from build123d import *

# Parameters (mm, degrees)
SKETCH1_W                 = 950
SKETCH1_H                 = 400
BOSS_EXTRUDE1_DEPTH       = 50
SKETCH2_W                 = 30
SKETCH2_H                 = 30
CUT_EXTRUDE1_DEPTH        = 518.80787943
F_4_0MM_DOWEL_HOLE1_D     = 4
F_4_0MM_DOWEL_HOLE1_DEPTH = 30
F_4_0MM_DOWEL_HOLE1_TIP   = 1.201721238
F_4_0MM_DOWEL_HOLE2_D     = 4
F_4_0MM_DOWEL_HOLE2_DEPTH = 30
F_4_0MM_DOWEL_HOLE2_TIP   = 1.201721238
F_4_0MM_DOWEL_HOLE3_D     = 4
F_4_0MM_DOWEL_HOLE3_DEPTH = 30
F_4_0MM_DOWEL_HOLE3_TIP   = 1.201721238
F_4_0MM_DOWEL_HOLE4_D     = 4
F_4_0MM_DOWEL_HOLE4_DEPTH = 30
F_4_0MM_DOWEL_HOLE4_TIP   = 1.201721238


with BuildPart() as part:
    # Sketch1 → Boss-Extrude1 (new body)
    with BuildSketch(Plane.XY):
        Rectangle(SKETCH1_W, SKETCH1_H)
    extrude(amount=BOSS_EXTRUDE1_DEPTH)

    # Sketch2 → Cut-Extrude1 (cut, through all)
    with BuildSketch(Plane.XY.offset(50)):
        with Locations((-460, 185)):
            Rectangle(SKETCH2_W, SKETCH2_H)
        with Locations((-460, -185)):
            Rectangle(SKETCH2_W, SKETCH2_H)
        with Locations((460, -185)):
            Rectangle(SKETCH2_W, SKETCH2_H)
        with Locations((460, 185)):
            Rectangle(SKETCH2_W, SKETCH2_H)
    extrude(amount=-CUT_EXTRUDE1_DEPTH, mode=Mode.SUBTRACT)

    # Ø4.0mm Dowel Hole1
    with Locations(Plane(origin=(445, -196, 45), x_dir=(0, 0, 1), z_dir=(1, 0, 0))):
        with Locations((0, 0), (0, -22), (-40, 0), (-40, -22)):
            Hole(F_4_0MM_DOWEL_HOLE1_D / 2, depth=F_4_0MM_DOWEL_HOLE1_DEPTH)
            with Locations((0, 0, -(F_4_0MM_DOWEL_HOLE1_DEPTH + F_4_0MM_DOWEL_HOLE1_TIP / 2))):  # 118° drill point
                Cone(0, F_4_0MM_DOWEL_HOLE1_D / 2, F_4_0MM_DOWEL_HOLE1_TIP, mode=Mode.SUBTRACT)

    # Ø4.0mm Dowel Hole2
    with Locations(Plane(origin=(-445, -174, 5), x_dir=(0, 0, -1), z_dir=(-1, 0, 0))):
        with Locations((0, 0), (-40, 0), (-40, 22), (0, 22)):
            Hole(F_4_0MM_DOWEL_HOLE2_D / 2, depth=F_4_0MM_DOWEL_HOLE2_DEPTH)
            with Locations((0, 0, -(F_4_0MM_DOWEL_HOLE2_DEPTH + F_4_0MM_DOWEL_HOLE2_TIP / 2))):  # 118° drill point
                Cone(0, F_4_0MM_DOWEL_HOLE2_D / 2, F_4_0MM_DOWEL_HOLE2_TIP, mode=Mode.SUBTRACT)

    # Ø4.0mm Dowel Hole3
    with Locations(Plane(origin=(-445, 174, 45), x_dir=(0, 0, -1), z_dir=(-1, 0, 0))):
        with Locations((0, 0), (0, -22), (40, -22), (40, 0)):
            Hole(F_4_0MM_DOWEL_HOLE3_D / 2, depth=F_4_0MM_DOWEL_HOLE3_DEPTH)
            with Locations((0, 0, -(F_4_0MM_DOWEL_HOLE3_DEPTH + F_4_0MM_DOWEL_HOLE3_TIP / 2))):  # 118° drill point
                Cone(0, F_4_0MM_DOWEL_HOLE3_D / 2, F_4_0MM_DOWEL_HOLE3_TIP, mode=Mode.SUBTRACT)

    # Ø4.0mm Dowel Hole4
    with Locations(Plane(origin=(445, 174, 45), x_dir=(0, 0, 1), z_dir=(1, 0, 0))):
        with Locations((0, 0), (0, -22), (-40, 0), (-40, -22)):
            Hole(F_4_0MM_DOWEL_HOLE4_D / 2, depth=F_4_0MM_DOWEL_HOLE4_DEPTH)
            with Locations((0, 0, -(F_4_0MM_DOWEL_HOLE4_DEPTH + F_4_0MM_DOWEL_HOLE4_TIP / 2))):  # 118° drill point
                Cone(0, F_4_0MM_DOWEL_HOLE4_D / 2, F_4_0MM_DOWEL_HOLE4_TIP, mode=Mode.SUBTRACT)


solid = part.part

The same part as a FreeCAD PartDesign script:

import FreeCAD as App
import Part
import Sketcher
from FreeCAD import Vector
Q = App.Units.Quantity

doc = App.newDocument("Part")
body = doc.addObject("PartDesign::Body", "Body")

# Sketch on XY plane
sketch1 = body.newObject("Sketcher::SketchObject", "Sketch")
sketch1.AttachmentSupport = (doc.getObject("XY_Plane"), [""])
sketch1.MapMode = "FlatFace"
sketch1.addGeometry(Part.LineSegment(Vector(-475, 200, 0), Vector(-475, -200, 0)), False)
sketch1.addGeometry(Part.LineSegment(Vector(-475, -200, 0), Vector(475, -200, 0)), False)
sketch1.addGeometry(Part.LineSegment(Vector(475, -200, 0), Vector(475, 200, 0)), False)
sketch1.addGeometry(Part.LineSegment(Vector(475, 200, 0), Vector(-475, 200, 0)), False)
sketch1.addConstraint(Sketcher.Constraint("Coincident", 0, 2, 1, 1))
sketch1.addConstraint(Sketcher.Constraint("Coincident", 1, 2, 2, 1))
sketch1.addConstraint(Sketcher.Constraint("Coincident", 2, 2, 3, 1))
sketch1.addConstraint(Sketcher.Constraint("Coincident", 3, 2, 0, 1))
sketch1.addConstraint(Sketcher.Constraint("Vertical", 0))
sketch1.addConstraint(Sketcher.Constraint("Horizontal", 1))
sketch1.addConstraint(Sketcher.Constraint("Vertical", 2))
sketch1.addConstraint(Sketcher.Constraint("Horizontal", 3))
sketch1.addConstraint(Sketcher.Constraint("Symmetric", 0, 2, 2, 2, -1, 1))
sketch1.addConstraint(Sketcher.Constraint("DistanceX", 1, 1, 1, 2, Q("950 mm")))
sketch1.addConstraint(Sketcher.Constraint("DistanceY", 0, 2, 0, 1, Q("400 mm")))
pad1 = body.newObject("PartDesign::Pad", "Pad")
pad1.Profile = sketch1
pad1.Length = 50

# Sketch on XY plane
sketch2 = body.newObject("Sketcher::SketchObject", "Sketch001")
sketch2.AttachmentSupport = (doc.getObject("XY_Plane"), [""])
sketch2.MapMode = "FlatFace"
sketch2.AttachmentOffset = App.Placement(Vector(0, 0, 50), App.Rotation())
sketch2.addGeometry(Part.LineSegment(Vector(-475, 200, 0), Vector(-475, 170, 0)), False)
sketch2.addGeometry(Part.LineSegment(Vector(-475, 170, 0), Vector(-445, 170, 0)), False)
sketch2.addGeometry(Part.LineSegment(Vector(-445, 170, 0), Vector(-445, 200, 0)), False)
sketch2.addGeometry(Part.LineSegment(Vector(-445, 200, 0), Vector(-475, 200, 0)), False)
sketch2.addGeometry(Part.LineSegment(Vector(-475, -170, 0), Vector(-475, -200, 0)), False)
sketch2.addGeometry(Part.LineSegment(Vector(-475, -200, 0), Vector(-445, -200, 0)), False)
sketch2.addGeometry(Part.LineSegment(Vector(-445, -200, 0), Vector(-445, -170, 0)), False)
sketch2.addGeometry(Part.LineSegment(Vector(-445, -170, 0), Vector(-475, -170, 0)), False)
sketch2.addGeometry(Part.LineSegment(Vector(445, -170, 0), Vector(445, -200, 0)), False)
sketch2.addGeometry(Part.LineSegment(Vector(445, -200, 0), Vector(475, -200, 0)), False)
sketch2.addGeometry(Part.LineSegment(Vector(475, -200, 0), Vector(475, -170, 0)), False)
sketch2.addGeometry(Part.LineSegment(Vector(475, -170, 0), Vector(445, -170, 0)), False)
sketch2.addGeometry(Part.LineSegment(Vector(445, 200, 0), Vector(445, 170, 0)), False)
sketch2.addGeometry(Part.LineSegment(Vector(445, 170, 0), Vector(475, 170, 0)), False)
sketch2.addGeometry(Part.LineSegment(Vector(475, 170, 0), Vector(475, 200, 0)), False)
sketch2.addGeometry(Part.LineSegment(Vector(475, 200, 0), Vector(445, 200, 0)), False)
sketch2.addConstraint(Sketcher.Constraint("Coincident", 0, 2, 1, 1))
sketch2.addConstraint(Sketcher.Constraint("Coincident", 1, 2, 2, 1))
sketch2.addConstraint(Sketcher.Constraint("Coincident", 2, 2, 3, 1))
sketch2.addConstraint(Sketcher.Constraint("Coincident", 3, 2, 0, 1))
sketch2.addConstraint(Sketcher.Constraint("Coincident", 4, 2, 5, 1))
sketch2.addConstraint(Sketcher.Constraint("Coincident", 5, 2, 6, 1))
sketch2.addConstraint(Sketcher.Constraint("Coincident", 6, 2, 7, 1))
sketch2.addConstraint(Sketcher.Constraint("Coincident", 7, 2, 4, 1))
sketch2.addConstraint(Sketcher.Constraint("Coincident", 8, 2, 9, 1))
sketch2.addConstraint(Sketcher.Constraint("Coincident", 9, 2, 10, 1))
sketch2.addConstraint(Sketcher.Constraint("Coincident", 10, 2, 11, 1))
sketch2.addConstraint(Sketcher.Constraint("Coincident", 11, 2, 8, 1))
sketch2.addConstraint(Sketcher.Constraint("Coincident", 12, 2, 13, 1))
sketch2.addConstraint(Sketcher.Constraint("Coincident", 13, 2, 14, 1))
sketch2.addConstraint(Sketcher.Constraint("Coincident", 14, 2, 15, 1))
sketch2.addConstraint(Sketcher.Constraint("Coincident", 15, 2, 12, 1))
sketch2.addConstraint(Sketcher.Constraint("Vertical", 0))
sketch2.addConstraint(Sketcher.Constraint("Horizontal", 1))
sketch2.addConstraint(Sketcher.Constraint("Vertical", 2))
sketch2.addConstraint(Sketcher.Constraint("Horizontal", 3))
sketch2.addConstraint(Sketcher.Constraint("Vertical", 4))
sketch2.addConstraint(Sketcher.Constraint("Horizontal", 5))
sketch2.addConstraint(Sketcher.Constraint("Vertical", 6))
sketch2.addConstraint(Sketcher.Constraint("Horizontal", 7))
sketch2.addConstraint(Sketcher.Constraint("Vertical", 8))
sketch2.addConstraint(Sketcher.Constraint("Horizontal", 9))
sketch2.addConstraint(Sketcher.Constraint("Vertical", 10))
sketch2.addConstraint(Sketcher.Constraint("Horizontal", 11))
sketch2.addConstraint(Sketcher.Constraint("Vertical", 12))
sketch2.addConstraint(Sketcher.Constraint("Horizontal", 13))
sketch2.addConstraint(Sketcher.Constraint("Vertical", 14))
sketch2.addConstraint(Sketcher.Constraint("Horizontal", 15))
sketch2.addConstraint(Sketcher.Constraint("Symmetric", 2, 2, 8, 2, -1, 1))
sketch2.addConstraint(Sketcher.Constraint("Symmetric", 0, 2, 10, 2, -1, 1))
sketch2.addConstraint(Sketcher.Constraint("Symmetric", 6, 2, 12, 2, -1, 1))
sketch2.addConstraint(Sketcher.Constraint("Symmetric", 4, 2, 14, 2, -1, 1))
sketch2.addConstraint(Sketcher.Constraint("Symmetric", 5, 2, 8, 2, -2))
sketch2.addConstraint(Sketcher.Constraint("Symmetric", 7, 2, 10, 2, -2))
sketch2.addConstraint(Sketcher.Constraint("Equal", 15, 0))
sketch2.addConstraint(Sketcher.Constraint("DistanceX", 1, 1, 1, 2, Q("30 mm")))
sketch2.addConstraint(Sketcher.Constraint("DistanceX", 0, 2, -1, 1, Q("475 mm")))
sketch2.addConstraint(Sketcher.Constraint("DistanceY", -1, 1, 0, 2, Q("170 mm")))
pocket1 = body.newObject("PartDesign::Pocket", "Pocket")
pocket1.Profile = sketch2
pocket1.Type = "ThroughAll"

# Sketch on YZ plane
sketch3 = body.newObject("Sketcher::SketchObject", "Sketch002")
sketch3.AttachmentSupport = (doc.getObject("YZ_Plane"), [""])
sketch3.MapMode = "FlatFace"
sketch3.AttachmentOffset = App.Placement(Vector(0, 0, 445), App.Rotation())
sketch3.addGeometry(Part.Circle(Vector(-196, 45, 0), Vector(0, 0, 1), 2), False)
sketch3.addGeometry(Part.Circle(Vector(-174, 45, 0), Vector(0, 0, 1), 2), False)
sketch3.addGeometry(Part.Circle(Vector(-196, 5, 0), Vector(0, 0, 1), 2), False)
sketch3.addGeometry(Part.Circle(Vector(-174, 5, 0), Vector(0, 0, 1), 2), False)
sketch3.addConstraint(Sketcher.Constraint("Equal", 0, 1))
sketch3.addConstraint(Sketcher.Constraint("Equal", 1, 2))
sketch3.addConstraint(Sketcher.Constraint("Equal", 2, 3))
sketch3.addConstraint(Sketcher.Constraint("Horizontal", 0, 3, 1, 3))
sketch3.addConstraint(Sketcher.Constraint("Horizontal", 2, 3, 3, 3))
sketch3.addConstraint(Sketcher.Constraint("Vertical", 0, 3, 2, 3))
sketch3.addConstraint(Sketcher.Constraint("Vertical", 1, 3, 3, 3))
sketch3.addConstraint(Sketcher.Constraint("Diameter", 0, Q("4 mm")))
sketch3.addConstraint(Sketcher.Constraint("DistanceX", 0, 3, -1, 1, Q("196 mm")))
sketch3.addConstraint(Sketcher.Constraint("DistanceY", -1, 1, 0, 3, Q("45 mm")))
sketch3.addConstraint(Sketcher.Constraint("DistanceX", 1, 3, -1, 1, Q("174 mm")))
sketch3.addConstraint(Sketcher.Constraint("DistanceY", -1, 1, 2, 3, Q("5 mm")))
doc.recompute()
hole = body.newObject("PartDesign::Hole", "Hole")
hole.Profile = sketch3
hole.ThreadType = "None"
hole.Diameter = 4
hole.DepthType = "Dimension"
hole.Depth = 30
hole.DrillPoint = "Angled"
hole.DrillPointAngle = 118

# Sketch on YZ plane
sketch4 = body.newObject("Sketcher::SketchObject", "Sketch003")
sketch4.AttachmentSupport = (doc.getObject("YZ_Plane"), [""])
sketch4.MapMode = "FlatFace"
sketch4.AttachmentOffset = App.Placement(Vector(0, 0, -445), App.Rotation())
sketch4.addGeometry(Part.Circle(Vector(-174, 5, 0), Vector(0, 0, 1), 2), False)
sketch4.addGeometry(Part.Circle(Vector(-174, 45, 0), Vector(0, 0, 1), 2), False)
sketch4.addGeometry(Part.Circle(Vector(-196, 45, 0), Vector(0, 0, 1), 2), False)
sketch4.addGeometry(Part.Circle(Vector(-196, 5, 0), Vector(0, 0, 1), 2), False)
sketch4.addConstraint(Sketcher.Constraint("Equal", 0, 1))
sketch4.addConstraint(Sketcher.Constraint("Equal", 1, 2))
sketch4.addConstraint(Sketcher.Constraint("Equal", 2, 3))
sketch4.addConstraint(Sketcher.Constraint("Horizontal", 1, 3, 2, 3))
sketch4.addConstraint(Sketcher.Constraint("Horizontal", 0, 3, 3, 3))
sketch4.addConstraint(Sketcher.Constraint("Vertical", 0, 3, 1, 3))
sketch4.addConstraint(Sketcher.Constraint("Vertical", 2, 3, 3, 3))
sketch4.addConstraint(Sketcher.Constraint("Diameter", 0, Q("4 mm")))
sketch4.addConstraint(Sketcher.Constraint("DistanceX", 0, 3, -1, 1, Q("174 mm")))
sketch4.addConstraint(Sketcher.Constraint("DistanceY", -1, 1, 0, 3, Q("5 mm")))
sketch4.addConstraint(Sketcher.Constraint("DistanceY", -1, 1, 1, 3, Q("45 mm")))
sketch4.addConstraint(Sketcher.Constraint("DistanceX", 2, 3, -1, 1, Q("196 mm")))
doc.recompute()
hole2 = body.newObject("PartDesign::Hole", "Hole001")
hole2.Profile = sketch4
hole2.ThreadType = "None"
hole2.Diameter = 4
hole2.DepthType = "Dimension"
hole2.Depth = 30
hole2.DrillPoint = "Angled"
hole2.DrillPointAngle = 118
hole2.Reversed = True

# Sketch on YZ plane
sketch5 = body.newObject("Sketcher::SketchObject", "Sketch004")
sketch5.AttachmentSupport = (doc.getObject("YZ_Plane"), [""])
sketch5.MapMode = "FlatFace"
sketch5.AttachmentOffset = App.Placement(Vector(0, 0, -445), App.Rotation())
sketch5.addGeometry(Part.Circle(Vector(174, 45, 0), Vector(0, 0, 1), 2), False)
sketch5.addGeometry(Part.Circle(Vector(196, 45, 0), Vector(0, 0, 1), 2), False)
sketch5.addGeometry(Part.Circle(Vector(196, 5, 0), Vector(0, 0, 1), 2), False)
sketch5.addGeometry(Part.Circle(Vector(174, 5, 0), Vector(0, 0, 1), 2), False)
sketch5.addConstraint(Sketcher.Constraint("Equal", 0, 1))
sketch5.addConstraint(Sketcher.Constraint("Equal", 1, 2))
sketch5.addConstraint(Sketcher.Constraint("Equal", 2, 3))
sketch5.addConstraint(Sketcher.Constraint("Horizontal", 0, 3, 1, 3))
sketch5.addConstraint(Sketcher.Constraint("Horizontal", 2, 3, 3, 3))
sketch5.addConstraint(Sketcher.Constraint("Vertical", 1, 3, 2, 3))
sketch5.addConstraint(Sketcher.Constraint("Vertical", 0, 3, 3, 3))
sketch5.addConstraint(Sketcher.Constraint("Diameter", 0, Q("4 mm")))
sketch5.addConstraint(Sketcher.Constraint("DistanceX", -1, 1, 0, 3, Q("174 mm")))
sketch5.addConstraint(Sketcher.Constraint("DistanceY", -1, 1, 0, 3, Q("45 mm")))
sketch5.addConstraint(Sketcher.Constraint("DistanceX", -1, 1, 1, 3, Q("196 mm")))
sketch5.addConstraint(Sketcher.Constraint("DistanceY", -1, 1, 2, 3, Q("5 mm")))
doc.recompute()
hole3 = body.newObject("PartDesign::Hole", "Hole002")
hole3.Profile = sketch5
hole3.ThreadType = "None"
hole3.Diameter = 4
hole3.DepthType = "Dimension"
hole3.Depth = 30
hole3.DrillPoint = "Angled"
hole3.DrillPointAngle = 118
hole3.Reversed = True

# Sketch on YZ plane
sketch6 = body.newObject("Sketcher::SketchObject", "Sketch005")
sketch6.AttachmentSupport = (doc.getObject("YZ_Plane"), [""])
sketch6.MapMode = "FlatFace"
sketch6.AttachmentOffset = App.Placement(Vector(0, 0, 445), App.Rotation())
sketch6.addGeometry(Part.Circle(Vector(174, 45, 0), Vector(0, 0, 1), 2), False)
sketch6.addGeometry(Part.Circle(Vector(196, 45, 0), Vector(0, 0, 1), 2), False)
sketch6.addGeometry(Part.Circle(Vector(174, 5, 0), Vector(0, 0, 1), 2), False)
sketch6.addGeometry(Part.Circle(Vector(196, 5, 0), Vector(0, 0, 1), 2), False)
sketch6.addConstraint(Sketcher.Constraint("Equal", 0, 1))
sketch6.addConstraint(Sketcher.Constraint("Equal", 1, 2))
sketch6.addConstraint(Sketcher.Constraint("Equal", 2, 3))
sketch6.addConstraint(Sketcher.Constraint("Horizontal", 0, 3, 1, 3))
sketch6.addConstraint(Sketcher.Constraint("Horizontal", 2, 3, 3, 3))
sketch6.addConstraint(Sketcher.Constraint("Vertical", 0, 3, 2, 3))
sketch6.addConstraint(Sketcher.Constraint("Vertical", 1, 3, 3, 3))
sketch6.addConstraint(Sketcher.Constraint("Diameter", 0, Q("4 mm")))
sketch6.addConstraint(Sketcher.Constraint("DistanceX", -1, 1, 0, 3, Q("174 mm")))
sketch6.addConstraint(Sketcher.Constraint("DistanceY", -1, 1, 0, 3, Q("45 mm")))
sketch6.addConstraint(Sketcher.Constraint("DistanceX", -1, 1, 1, 3, Q("196 mm")))
sketch6.addConstraint(Sketcher.Constraint("DistanceY", -1, 1, 2, 3, Q("5 mm")))
doc.recompute()
hole4 = body.newObject("PartDesign::Hole", "Hole003")
hole4.Profile = sketch6
hole4.ThreadType = "None"
hole4.Diameter = 4
hole4.DepthType = "Dimension"
hole4.Depth = 30
hole4.DrillPoint = "Angled"
hole4.DrillPointAngle = 118

doc.recompute()
